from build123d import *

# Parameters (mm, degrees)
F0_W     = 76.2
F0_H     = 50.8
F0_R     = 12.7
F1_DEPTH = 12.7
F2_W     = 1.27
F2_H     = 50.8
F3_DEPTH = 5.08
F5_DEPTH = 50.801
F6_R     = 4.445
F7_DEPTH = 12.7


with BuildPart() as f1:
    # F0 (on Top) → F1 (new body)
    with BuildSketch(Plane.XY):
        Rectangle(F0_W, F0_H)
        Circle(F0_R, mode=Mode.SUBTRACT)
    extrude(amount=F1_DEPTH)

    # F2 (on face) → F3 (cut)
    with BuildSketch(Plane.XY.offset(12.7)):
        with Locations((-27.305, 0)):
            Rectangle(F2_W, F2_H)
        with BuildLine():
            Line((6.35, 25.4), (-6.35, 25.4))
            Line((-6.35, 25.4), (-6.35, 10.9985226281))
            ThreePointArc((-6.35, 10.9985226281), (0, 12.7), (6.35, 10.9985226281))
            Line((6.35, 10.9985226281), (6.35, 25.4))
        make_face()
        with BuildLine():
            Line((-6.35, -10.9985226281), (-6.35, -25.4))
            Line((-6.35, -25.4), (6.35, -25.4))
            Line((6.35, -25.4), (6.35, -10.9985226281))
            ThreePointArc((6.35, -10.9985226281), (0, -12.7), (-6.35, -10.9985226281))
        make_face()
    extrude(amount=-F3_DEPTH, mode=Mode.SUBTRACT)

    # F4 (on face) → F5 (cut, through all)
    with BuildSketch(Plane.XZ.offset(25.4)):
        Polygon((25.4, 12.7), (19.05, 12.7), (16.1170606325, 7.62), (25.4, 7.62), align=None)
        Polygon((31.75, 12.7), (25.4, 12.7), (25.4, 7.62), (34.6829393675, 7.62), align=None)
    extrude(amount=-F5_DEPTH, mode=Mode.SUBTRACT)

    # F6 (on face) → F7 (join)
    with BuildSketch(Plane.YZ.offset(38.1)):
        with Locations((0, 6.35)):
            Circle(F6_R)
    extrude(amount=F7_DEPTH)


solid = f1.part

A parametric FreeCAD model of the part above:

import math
import FreeCAD as App
import Part
import Sketcher
Q = App.Units.Quantity

doc = App.newDocument("Part")
body = doc.addObject("PartDesign::Body", "Body")

sketch1 = doc.addObject("Sketcher::SketchObject", "Sketch")
body.addObject(sketch1)
sketch1.AttachmentSupport = (doc.XY_Plane, [""])
sketch1.MapMode = "FlatFace"
sketch1.addGeometry(Part.LineSegment(App.Vector(-38.1, 25.4, 0), App.Vector(-38.1, -25.4, 0)), False)
sketch1.addGeometry(Part.LineSegment(App.Vector(-38.1, -25.4, 0), App.Vector(38.1, -25.4, 0)), False)
sketch1.addGeometry(Part.LineSegment(App.Vector(38.1, -25.4, 0), App.Vector(38.1, 25.4, 0)), False)
sketch1.addGeometry(Part.LineSegment(App.Vector(38.1, 25.4, 0), App.Vector(-38.1, 25.4, 0)), False)
sketch1.addGeometry(Part.Circle(App.Vector(0, 0, 0), App.Vector(0, 0, 1), 12.7), False)
sketch1.addConstraint(Sketcher.Constraint("Coincident", 0, 2, 1, 1))
sketch1.addConstraint(Sketcher.Constraint("Coincident", 1, 2, 2, 1))
sketch1.addConstraint(Sketcher.Constraint("Coincident", 2, 2, 3, 1))
sketch1.addConstraint(Sketcher.Constraint("Coincident", 3, 2, 0, 1))
sketch1.addConstraint(Sketcher.Constraint("Vertical", 0))
sketch1.addConstraint(Sketcher.Constraint("Horizontal", 1))
sketch1.addConstraint(Sketcher.Constraint("Vertical", 2))
sketch1.addConstraint(Sketcher.Constraint("Horizontal", 3))
sketch1.addConstraint(Sketcher.Constraint("Coincident", 4, 3, -1, 1))
sketch1.addConstraint(Sketcher.Constraint("Symmetric", 0, 2, 2, 2, -1, 1))
sketch1.addConstraint(Sketcher.Constraint("Diameter", 4, Q("1 in")))
sketch1.addConstraint(Sketcher.Constraint("DistanceX", 1, 1, 1, 2, Q("3 in")))
sketch1.addConstraint(Sketcher.Constraint("DistanceY", 0, 2, 0, 1, Q("2 in")))
pad1 = doc.addObject("PartDesign::Pad", "Pad")
body.addObject(pad1)
pad1.Profile = sketch1
pad1.Length = Q("0.5 in")

sketch2 = doc.addObject("Sketcher::SketchObject", "Sketch001")
body.addObject(sketch2)
sketch2.AttachmentSupport = (doc.XY_Plane, [""])
sketch2.MapMode = "FlatFace"
sketch2.AttachmentOffset = App.Placement(App.Vector(0, 0, 0.5 * 25.4), App.Rotation())
sketch2.addGeometry(Part.LineSegment(App.Vector(-27.94, 25.4, 0), App.Vector(-27.94, -25.4, 0)), False)
sketch2.addGeometry(Part.LineSegment(App.Vector(-27.94, -25.4, 0), App.Vector(-26.67, -25.4, 0)), False)
sketch2.addGeometry(Part.LineSegment(App.Vector(-26.67, -25.4, 0), App.Vector(-26.67, 25.4, 0)), False)
sketch2.addGeometry(Part.LineSegment(App.Vector(-26.67, 25.4, 0), App.Vector(-27.94, 25.4, 0)), False)
sketch2.addGeometry(Part.LineSegment(App.Vector(6.35, 25.4, 0), App.Vector(-6.35, 25.4, 0)), False)
sketch2.addGeometry(Part.LineSegment(App.Vector(-6.35, 25.4, 0), App.Vector(-6.35, 10.998523, 0)), False)
sketch2.addGeometry(Part.ArcOfCircle(Part.Circle(App.Vector(0, 0, 0), App.Vector(0, 0, 1), 12.7), math.radians(60), math.radians(120)), False)
sketch2.addGeometry(Part.LineSegment(App.Vector(6.35, 10.998523, 0), App.Vector(6.35, 25.4, 0)), False)
sketch2.addGeometry(Part.LineSegment(App.Vector(-6.35, -10.998523, 0), App.Vector(-6.35, -25.4, 0)), False)
sketch2.addGeometry(Part.LineSegment(App.Vector(-6.35, -25.4, 0), App.Vector(6.35, -25.4, 0)), False)
sketch2.addGeometry(Part.LineSegment(App.Vector(6.35, -25.4, 0), App.Vector(6.35, -10.998523, 0)), False)
sketch2.addGeometry(Part.ArcOfCircle(Part.Circle(App.Vector(0, 0, 0), App.Vector(0, 0, 1), 12.7), math.radians(-120), math.radians(-60)), False)
sketch2.addConstraint(Sketcher.Constraint("Coincident", 0, 2, 1, 1))
sketch2.addConstraint(Sketcher.Constraint("Coincident", 1, 2, 2, 1))
sketch2.addConstraint(Sketcher.Constraint("Coincident", 2, 2, 3, 1))
sketch2.addConstraint(Sketcher.Constraint("Coincident", 3, 2, 0, 1))
sketch2.addConstraint(Sketcher.Constraint("Coincident", 4, 2, 5, 1))
sketch2.addConstraint(Sketcher.Constraint("Coincident", 5, 2, 6, 2))
sketch2.addConstraint(Sketcher.Constraint("Coincident", 6, 1, 7, 1))
sketch2.addConstraint(Sketcher.Constraint("Coincident", 7, 2, 4, 1))
sketch2.addConstraint(Sketcher.Constraint("Coincident", 8, 2, 9, 1))
sketch2.addConstraint(Sketcher.Constraint("Coincident", 9, 2, 10, 1))
sketch2.addConstraint(Sketcher.Constraint("Coincident", 10, 2, 11, 2))
sketch2.addConstraint(Sketcher.Constraint("Coincident", 11, 1, 8, 1))
sketch2.addConstraint(Sketcher.Constraint("Vertical", 0))
sketch2.addConstraint(Sketcher.Constraint("Horizontal", 1))
sketch2.addConstraint(Sketcher.Constraint("Vertical", 2))
sketch2.addConstraint(Sketcher.Constraint("Horizontal", 3))
sketch2.addConstraint(Sketcher.Constraint("Horizontal", 4))
sketch2.addConstraint(Sketcher.Constraint("Vertical", 5))
sketch2.addConstraint(Sketcher.Constraint("Vertical", 7))
sketch2.addConstraint(Sketcher.Constraint("Vertical", 8))
sketch2.addConstraint(Sketcher.Constraint("Horizontal", 9))
sketch2.addConstraint(Sketcher.Constraint("Vertical", 10))
sketch2.addConstraint(Sketcher.Constraint("Coincident", 6, 3, -1, 1))
sketch2.addConstraint(Sketcher.Constraint("Coincident", 11, 3, -1, 1))
sketch2.addConstraint(Sketcher.Constraint("Equal", 6, 11))
sketch2.addConstraint(Sketcher.Constraint("Symmetric", 7, 2, 8, 2, -1, 1))
sketch2.addConstraint(Sketcher.Constraint("Horizontal", 3, 2, 4, 2))
sketch2.addConstraint(Sketcher.Constraint("Horizontal", 5, 2, 6, 1))
sketch2.addConstraint(Sketcher.Constraint("Horizontal", 1, 2, 8, 2))
sketch2.addConstraint(Sketcher.Constraint("Horizontal", 10, 2, 11, 1))
sketch2.addConstraint(Sketcher.Constraint("Radius", 6, Q("0.5 in")))
sketch2.addConstraint(Sketcher.Constraint("DistanceY", 0, 2, 0, 1, Q("2 in")))
sketch2.addConstraint(Sketcher.Constraint("DistanceX", 4, 2, 4, 1, Q("0.5 in")))
sketch2.addConstraint(Sketcher.Constraint("DistanceX", 1, 1, 1, 2, Q("0.05 in")))
sketch2.addConstraint(Sketcher.Constraint("DistanceX", 0, 2, -1, 1, Q("1.1 in")))
pocket1 = doc.addObject("PartDesign::Pocket", "Pocket")
body.addObject(pocket1)
pocket1.Profile = sketch2
pocket1.Length = Q("0.2 in")

sketch3 = doc.addObject("Sketcher::SketchObject", "Sketch002")
body.addObject(sketch3)
sketch3.AttachmentSupport = (doc.XZ_Plane, [""])
sketch3.MapMode = "FlatFace"
sketch3.AttachmentOffset = App.Placement(App.Vector(0, 0, 1 * 25.4), App.Rotation())
sketch3.addGeometry(Part.LineSegment(App.Vector(19.05, 12.7, 0), App.Vector(16.117061, 7.62, 0)), False)
sketch3.addGeometry(Part.LineSegment(App.Vector(16.117061, 7.62, 0), App.Vector(34.682939, 7.62, 0)), False)
sketch3.addGeometry(Part.LineSegment(App.Vector(34.682939, 7.62, 0), App.Vector(31.75, 12.7, 0)), False)
sketch3.addGeometry(Part.LineSegment(App.Vector(31.75, 12.7, 0), App.Vector(19.05, 12.7, 0)), False)
sketch3.addConstraint(Sketcher.Constraint("Coincident", 0, 2, 1, 1))
sketch3.addConstraint(Sketcher.Constraint("Coincident", 1, 2, 2, 1))
sketch3.addConstraint(Sketcher.Constraint("Coincident", 2, 2, 3, 1))
sketch3.addConstraint(Sketcher.Constraint("Coincident", 3, 2, 0, 1))
sketch3.addConstraint(Sketcher.Constraint("Horizontal", 1))
sketch3.addConstraint(Sketcher.Constraint("Horizontal", 3))
sketch3.addConstraint(Sketcher.Constraint("Equal", 0, 2))
sketch3.addConstraint(Sketcher.Constraint("DistanceX", 3, 2, 3, 1, Q("0.5 in")))
sketch3.addConstraint(Sketcher.Constraint("Angle", 0, Q("-120 deg")))
sketch3.addConstraint(Sketcher.Constraint("DistanceY", -1, 1, 0, 2, Q("0.3 in")))
sketch3.addConstraint(Sketcher.Constraint("DistanceY", -1, 1, 2, 2, Q("0.5 in")))
sketch3.addConstraint(Sketcher.Constraint("DistanceX", -1, 1, 2, 2, Q("1.25 in")))
pocket2 = doc.addObject("PartDesign::Pocket", "Pocket001")
body.addObject(pocket2)
pocket2.Profile = sketch3
pocket2.Type = "ThroughAll"

sketch4 = doc.addObject("Sketcher::SketchObject", "Sketch003")
body.addObject(sketch4)
sketch4.AttachmentSupport = (doc.YZ_Plane, [""])
sketch4.MapMode = "FlatFace"
sketch4.AttachmentOffset = App.Placement(App.Vector(0, 0, 1.5 * 25.4), App.Rotation())
sketch4.addGeometry(Part.Circle(App.Vector(0, 6.35, 0), App.Vector(0, 0, 1), 4.445), False)
sketch4.addConstraint(Sketcher.Constraint("PointOnObject", 0, 3, -2))
sketch4.addConstraint(Sketcher.Constraint("Diameter", 0, Q("0.35 in")))
sketch4.addConstraint(Sketcher.Constraint("DistanceY", -1, 1, 0, 3, Q("0.25 in")))
pad2 = doc.addObject("PartDesign::Pad", "Pad001")
body.addObject(pad2)
pad2.Profile = sketch4
pad2.Length = Q("0.5 in")

doc.recompute()
